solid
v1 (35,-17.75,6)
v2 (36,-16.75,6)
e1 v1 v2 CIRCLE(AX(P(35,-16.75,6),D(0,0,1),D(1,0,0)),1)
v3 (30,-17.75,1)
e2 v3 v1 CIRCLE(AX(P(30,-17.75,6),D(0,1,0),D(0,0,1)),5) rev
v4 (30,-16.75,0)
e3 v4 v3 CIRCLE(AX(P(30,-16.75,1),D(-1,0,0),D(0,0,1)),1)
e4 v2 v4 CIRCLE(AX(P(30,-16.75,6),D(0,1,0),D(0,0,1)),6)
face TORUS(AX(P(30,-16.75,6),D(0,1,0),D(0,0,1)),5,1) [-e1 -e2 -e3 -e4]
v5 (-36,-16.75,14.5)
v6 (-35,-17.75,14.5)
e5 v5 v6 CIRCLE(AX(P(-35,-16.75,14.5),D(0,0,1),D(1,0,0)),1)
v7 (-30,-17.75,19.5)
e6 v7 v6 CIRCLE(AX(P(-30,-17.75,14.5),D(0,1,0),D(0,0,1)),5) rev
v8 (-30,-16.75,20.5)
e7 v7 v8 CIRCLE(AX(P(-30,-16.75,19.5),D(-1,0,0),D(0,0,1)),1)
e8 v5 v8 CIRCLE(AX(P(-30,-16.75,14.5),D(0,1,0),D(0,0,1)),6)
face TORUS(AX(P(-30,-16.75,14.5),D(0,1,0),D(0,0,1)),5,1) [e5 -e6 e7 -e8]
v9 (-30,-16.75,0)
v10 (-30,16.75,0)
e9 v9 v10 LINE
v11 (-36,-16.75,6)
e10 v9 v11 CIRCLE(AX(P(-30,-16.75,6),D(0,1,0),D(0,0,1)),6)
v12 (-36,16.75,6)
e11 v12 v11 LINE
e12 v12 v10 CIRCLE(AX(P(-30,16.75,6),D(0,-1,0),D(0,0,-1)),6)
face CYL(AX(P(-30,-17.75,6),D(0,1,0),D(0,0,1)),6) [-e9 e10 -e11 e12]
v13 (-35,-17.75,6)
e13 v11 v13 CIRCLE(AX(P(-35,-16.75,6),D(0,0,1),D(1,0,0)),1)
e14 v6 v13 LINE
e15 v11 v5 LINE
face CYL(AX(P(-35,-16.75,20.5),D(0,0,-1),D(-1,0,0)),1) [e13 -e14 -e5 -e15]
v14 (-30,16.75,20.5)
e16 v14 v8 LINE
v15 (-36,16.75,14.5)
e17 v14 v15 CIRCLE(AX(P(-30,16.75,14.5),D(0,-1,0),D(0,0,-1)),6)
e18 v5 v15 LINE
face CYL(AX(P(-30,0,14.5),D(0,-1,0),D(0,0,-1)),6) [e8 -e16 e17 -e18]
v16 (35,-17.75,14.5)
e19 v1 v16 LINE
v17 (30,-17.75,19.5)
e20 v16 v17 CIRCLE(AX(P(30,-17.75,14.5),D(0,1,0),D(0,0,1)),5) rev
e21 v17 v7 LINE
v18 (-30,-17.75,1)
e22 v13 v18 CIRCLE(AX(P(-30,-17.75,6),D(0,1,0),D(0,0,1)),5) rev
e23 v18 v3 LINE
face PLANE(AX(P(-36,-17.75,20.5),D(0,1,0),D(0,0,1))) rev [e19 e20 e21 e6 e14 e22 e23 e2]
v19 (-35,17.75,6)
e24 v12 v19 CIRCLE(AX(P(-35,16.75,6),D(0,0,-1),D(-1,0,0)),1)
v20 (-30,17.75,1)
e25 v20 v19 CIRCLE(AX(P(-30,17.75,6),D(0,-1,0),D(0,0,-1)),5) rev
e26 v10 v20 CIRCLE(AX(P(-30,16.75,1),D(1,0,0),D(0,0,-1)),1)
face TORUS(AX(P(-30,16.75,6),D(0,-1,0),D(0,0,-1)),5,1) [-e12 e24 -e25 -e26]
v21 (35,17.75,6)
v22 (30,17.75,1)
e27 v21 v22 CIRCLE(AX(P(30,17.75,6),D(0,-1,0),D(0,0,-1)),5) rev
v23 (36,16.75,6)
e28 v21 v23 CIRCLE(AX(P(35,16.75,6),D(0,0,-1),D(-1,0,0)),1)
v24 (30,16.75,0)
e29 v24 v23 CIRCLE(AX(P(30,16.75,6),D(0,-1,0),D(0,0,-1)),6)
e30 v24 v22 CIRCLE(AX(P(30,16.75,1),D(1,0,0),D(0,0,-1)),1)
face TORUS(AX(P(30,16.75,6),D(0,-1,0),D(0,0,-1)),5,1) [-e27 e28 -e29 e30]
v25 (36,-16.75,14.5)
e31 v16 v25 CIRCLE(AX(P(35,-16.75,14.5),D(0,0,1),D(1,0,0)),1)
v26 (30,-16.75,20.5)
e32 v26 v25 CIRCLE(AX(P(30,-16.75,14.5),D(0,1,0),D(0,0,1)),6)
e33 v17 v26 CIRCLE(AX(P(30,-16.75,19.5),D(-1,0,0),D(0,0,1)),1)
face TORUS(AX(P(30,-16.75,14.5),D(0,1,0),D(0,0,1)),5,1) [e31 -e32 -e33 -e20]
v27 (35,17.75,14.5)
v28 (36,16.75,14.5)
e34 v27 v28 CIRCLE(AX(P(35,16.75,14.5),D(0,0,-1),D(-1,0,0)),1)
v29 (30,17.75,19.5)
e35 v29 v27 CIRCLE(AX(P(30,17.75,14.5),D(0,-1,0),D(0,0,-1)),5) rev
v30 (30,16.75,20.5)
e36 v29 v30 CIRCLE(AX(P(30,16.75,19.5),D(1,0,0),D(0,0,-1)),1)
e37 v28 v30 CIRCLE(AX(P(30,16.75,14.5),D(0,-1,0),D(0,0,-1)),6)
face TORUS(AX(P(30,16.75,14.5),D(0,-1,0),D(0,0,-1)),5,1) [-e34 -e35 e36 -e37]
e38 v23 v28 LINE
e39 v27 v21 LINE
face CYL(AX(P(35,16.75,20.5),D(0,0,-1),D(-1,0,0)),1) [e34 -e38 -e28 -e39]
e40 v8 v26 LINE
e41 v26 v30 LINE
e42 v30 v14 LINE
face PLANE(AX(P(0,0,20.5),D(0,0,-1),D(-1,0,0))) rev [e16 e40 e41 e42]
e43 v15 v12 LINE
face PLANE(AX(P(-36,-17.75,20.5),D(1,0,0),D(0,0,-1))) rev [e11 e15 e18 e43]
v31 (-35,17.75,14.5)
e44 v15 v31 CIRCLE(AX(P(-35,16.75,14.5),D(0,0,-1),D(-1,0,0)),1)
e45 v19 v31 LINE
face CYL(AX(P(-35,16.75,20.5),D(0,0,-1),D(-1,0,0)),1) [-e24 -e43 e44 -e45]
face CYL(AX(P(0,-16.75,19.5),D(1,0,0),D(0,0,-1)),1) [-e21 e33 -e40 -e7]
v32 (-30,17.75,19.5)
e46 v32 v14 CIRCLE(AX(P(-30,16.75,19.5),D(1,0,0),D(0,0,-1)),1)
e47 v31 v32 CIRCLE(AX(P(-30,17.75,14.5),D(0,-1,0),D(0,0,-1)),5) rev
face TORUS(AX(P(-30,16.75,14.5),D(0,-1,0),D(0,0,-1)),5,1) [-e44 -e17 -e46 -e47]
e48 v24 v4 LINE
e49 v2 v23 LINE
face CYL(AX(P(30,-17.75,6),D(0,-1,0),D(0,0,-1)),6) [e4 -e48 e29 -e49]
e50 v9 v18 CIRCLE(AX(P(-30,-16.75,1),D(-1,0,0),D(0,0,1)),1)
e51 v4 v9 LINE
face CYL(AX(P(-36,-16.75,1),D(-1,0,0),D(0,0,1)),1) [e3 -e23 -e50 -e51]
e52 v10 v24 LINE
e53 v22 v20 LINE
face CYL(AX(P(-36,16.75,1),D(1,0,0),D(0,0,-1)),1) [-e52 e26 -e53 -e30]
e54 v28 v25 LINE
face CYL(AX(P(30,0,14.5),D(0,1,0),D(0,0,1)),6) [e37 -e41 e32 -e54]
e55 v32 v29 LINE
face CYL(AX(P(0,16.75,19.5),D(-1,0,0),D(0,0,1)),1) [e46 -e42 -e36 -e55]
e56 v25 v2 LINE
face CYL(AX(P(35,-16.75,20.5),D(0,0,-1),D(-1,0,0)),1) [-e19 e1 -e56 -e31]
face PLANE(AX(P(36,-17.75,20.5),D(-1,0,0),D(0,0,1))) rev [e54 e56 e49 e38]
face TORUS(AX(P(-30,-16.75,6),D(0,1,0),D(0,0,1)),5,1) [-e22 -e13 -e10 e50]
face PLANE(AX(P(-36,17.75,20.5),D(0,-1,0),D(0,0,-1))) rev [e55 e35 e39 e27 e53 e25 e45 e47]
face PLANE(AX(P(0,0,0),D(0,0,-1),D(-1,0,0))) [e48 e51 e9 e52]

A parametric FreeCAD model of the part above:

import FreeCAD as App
import Part
import Sketcher
from FreeCAD import Vector
Q = App.Units.Quantity


def edges_at(feature, points):
    """Names of the edges that pass closest to the given points."""
    edges = feature.Shape.Edges
    near = lambda p: min(range(len(edges)), key=lambda i: edges[i].distToShape(Part.Vertex(*p))[0])
    return sorted({f"Edge{near(p) + 1}" for p in points})

doc = App.newDocument("Part")
body = doc.addObject("PartDesign::Body", "Body")

sketch1 = body.newObject("Sketcher::SketchObject", "Sketch")
sketch1.AttachmentSupport = (doc.getObject("XY_Plane"), [""])
sketch1.MapMode = "FlatFace"
sketch1.addGeometry(Part.LineSegment(Vector(-36, 18, 0), Vector(-36, -18, 0)), False)
sketch1.addGeometry(Part.LineSegment(Vector(-36, -18, 0), Vector(36, -18, 0)), False)
sketch1.addGeometry(Part.LineSegment(Vector(36, -18, 0), Vector(36, 18, 0)), False)
sketch1.addGeometry(Part.LineSegment(Vector(36, 18, 0), Vector(-36, 18, 0)), False)
sketch1.addConstraint(Sketcher.Constraint("Coincident", 0, 2, 1, 1))
sketch1.addConstraint(Sketcher.Constraint("Coincident", 1, 2, 2, 1))
sketch1.addConstraint(Sketcher.Constraint("Coincident", 2, 2, 3, 1))
sketch1.addConstraint(Sketcher.Constraint("Coincident", 3, 2, 0, 1))
sketch1.addConstraint(Sketcher.Constraint("Vertical", 0))
sketch1.addConstraint(Sketcher.Constraint("Horizontal", 1))
sketch1.addConstraint(Sketcher.Constraint("Vertical", 2))
sketch1.addConstraint(Sketcher.Constraint("Horizontal", 3))
sketch1.addConstraint(Sketcher.Constraint("Symmetric", 0, 2, 2, 2, -1, 1))
sketch1.addConstraint(Sketcher.Constraint("DistanceX", 1, 1, 1, 2, Q("72 mm")))
sketch1.addConstraint(Sketcher.Constraint("DistanceY", 0, 2, 0, 1, Q("35.5 mm")))
pad1 = body.newObject("PartDesign::Pad", "Pad")
pad1.Profile = sketch1
pad1.Length = 20.5
doc.recompute()

fillet = body.newObject("PartDesign::Fillet", "Fillet")
fillet.Base = (pad1, edges_at(pad1, [
    (-36, 0, 20.5),
    (36, 0, 20.5),
    (-36, 0, 0),
    (36, 0, 0),
]))
fillet.Radius = 6
doc.recompute()

fillet2 = body.newObject("PartDesign::Fillet", "Fillet001")
fillet2.Base = (fillet, edges_at(fillet, [
    (-36, -17.75, 10.25),
    (-36, 17.75, 10.25),
    (0, -17.75, 0),
    (36, -17.75, 10.25),
    (0, -17.75, 20.5),
    (34.243, -17.75, 18.743),
    (34.243, -17.75, 1.757),
    (-34.243, -17.75, 18.743),
    (-34.243, -17.75, 1.757),
    (0, 17.75, 0),
    (0, 17.75, 20.5),
    (36, 17.75, 10.25),
    (34.243, 17.75, 18.743),
    (34.243, 17.75, 1.757),
    (-34.243, 17.75, 18.743),
    (-34.243, 17.75, 1.757),
]))
fillet2.Radius = 1

doc.recompute()
